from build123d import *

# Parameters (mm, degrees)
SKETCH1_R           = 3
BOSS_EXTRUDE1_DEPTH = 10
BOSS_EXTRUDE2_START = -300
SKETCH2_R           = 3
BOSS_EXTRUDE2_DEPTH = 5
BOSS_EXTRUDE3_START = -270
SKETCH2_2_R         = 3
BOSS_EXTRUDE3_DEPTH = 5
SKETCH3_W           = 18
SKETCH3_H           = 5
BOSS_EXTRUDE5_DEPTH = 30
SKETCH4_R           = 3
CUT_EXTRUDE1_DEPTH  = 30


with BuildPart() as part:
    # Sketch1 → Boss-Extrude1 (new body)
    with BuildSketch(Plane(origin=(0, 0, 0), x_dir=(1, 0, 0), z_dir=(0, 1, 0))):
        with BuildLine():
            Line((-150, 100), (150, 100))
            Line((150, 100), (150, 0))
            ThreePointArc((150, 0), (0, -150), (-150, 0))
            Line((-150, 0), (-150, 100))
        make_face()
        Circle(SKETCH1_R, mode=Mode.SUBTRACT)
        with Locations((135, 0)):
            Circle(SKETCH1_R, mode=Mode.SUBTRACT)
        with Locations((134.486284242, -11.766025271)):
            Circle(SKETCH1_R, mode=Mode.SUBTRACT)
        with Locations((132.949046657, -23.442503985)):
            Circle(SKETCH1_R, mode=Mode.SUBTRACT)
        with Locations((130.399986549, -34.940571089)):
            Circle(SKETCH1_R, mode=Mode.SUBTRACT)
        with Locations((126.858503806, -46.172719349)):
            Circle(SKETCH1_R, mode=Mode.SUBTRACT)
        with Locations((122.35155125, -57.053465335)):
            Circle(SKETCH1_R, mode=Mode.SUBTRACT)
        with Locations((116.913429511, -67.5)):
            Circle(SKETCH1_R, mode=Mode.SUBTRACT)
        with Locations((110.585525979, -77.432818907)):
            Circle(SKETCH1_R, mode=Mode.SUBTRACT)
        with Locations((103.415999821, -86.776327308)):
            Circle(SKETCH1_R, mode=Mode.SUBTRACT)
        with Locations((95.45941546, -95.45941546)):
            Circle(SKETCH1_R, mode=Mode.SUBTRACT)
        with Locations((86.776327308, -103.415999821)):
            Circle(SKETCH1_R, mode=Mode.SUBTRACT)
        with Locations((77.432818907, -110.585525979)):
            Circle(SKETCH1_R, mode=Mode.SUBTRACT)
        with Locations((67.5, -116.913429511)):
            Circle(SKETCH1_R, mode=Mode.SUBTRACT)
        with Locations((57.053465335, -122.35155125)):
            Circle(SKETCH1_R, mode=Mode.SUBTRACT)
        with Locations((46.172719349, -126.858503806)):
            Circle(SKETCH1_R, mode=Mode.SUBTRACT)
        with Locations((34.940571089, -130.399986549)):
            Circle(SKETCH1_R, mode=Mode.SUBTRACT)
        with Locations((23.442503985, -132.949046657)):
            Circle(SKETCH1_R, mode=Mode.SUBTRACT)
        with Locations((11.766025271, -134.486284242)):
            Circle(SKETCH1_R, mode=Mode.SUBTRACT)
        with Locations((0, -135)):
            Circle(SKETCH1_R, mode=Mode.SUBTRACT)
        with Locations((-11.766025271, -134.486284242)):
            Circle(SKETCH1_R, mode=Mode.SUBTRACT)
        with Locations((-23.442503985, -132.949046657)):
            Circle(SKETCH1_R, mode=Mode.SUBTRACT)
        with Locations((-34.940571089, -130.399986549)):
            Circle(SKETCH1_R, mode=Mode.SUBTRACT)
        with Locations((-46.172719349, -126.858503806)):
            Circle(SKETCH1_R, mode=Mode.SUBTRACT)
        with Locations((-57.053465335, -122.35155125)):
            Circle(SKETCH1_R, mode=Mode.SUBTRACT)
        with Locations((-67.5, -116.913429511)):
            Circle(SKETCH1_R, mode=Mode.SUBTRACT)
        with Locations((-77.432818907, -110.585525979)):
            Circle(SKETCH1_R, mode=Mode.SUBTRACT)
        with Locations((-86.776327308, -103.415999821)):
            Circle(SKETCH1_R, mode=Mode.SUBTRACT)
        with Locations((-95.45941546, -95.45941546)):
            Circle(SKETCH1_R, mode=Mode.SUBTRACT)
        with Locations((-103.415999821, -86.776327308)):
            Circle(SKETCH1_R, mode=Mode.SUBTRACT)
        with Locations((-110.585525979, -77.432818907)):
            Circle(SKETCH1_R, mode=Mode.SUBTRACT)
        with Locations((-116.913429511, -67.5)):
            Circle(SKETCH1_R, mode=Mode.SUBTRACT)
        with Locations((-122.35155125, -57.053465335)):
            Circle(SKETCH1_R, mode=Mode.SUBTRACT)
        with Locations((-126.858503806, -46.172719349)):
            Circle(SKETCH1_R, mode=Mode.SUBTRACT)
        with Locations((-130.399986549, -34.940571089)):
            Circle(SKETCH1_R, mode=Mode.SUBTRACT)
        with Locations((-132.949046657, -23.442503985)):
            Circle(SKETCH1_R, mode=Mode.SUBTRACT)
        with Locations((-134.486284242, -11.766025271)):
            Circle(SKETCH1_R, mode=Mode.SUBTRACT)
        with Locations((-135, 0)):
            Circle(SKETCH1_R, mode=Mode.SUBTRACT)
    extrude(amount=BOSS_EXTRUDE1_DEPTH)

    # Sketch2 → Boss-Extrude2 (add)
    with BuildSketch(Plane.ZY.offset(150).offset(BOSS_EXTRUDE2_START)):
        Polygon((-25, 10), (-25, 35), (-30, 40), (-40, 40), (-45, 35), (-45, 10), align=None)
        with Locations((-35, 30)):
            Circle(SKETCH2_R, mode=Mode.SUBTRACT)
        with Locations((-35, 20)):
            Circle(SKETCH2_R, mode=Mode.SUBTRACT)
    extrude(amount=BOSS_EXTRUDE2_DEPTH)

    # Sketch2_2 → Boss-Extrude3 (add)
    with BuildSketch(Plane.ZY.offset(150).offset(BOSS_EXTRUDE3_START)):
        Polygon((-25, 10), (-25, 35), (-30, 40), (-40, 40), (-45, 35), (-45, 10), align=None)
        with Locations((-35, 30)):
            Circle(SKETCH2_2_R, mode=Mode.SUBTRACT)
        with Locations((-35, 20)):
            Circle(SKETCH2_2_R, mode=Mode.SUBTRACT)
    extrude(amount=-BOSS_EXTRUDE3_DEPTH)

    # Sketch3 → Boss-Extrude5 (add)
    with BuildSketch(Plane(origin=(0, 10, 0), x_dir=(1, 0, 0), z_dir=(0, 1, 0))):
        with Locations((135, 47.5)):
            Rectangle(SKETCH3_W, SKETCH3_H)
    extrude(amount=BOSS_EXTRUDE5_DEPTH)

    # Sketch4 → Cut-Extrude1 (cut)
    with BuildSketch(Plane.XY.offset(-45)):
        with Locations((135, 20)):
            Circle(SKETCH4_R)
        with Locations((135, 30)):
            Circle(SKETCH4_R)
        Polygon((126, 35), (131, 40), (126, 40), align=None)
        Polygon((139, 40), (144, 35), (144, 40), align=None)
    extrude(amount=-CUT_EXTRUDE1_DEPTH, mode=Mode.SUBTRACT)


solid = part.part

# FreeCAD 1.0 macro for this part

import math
import FreeCAD as App
import Part
import Sketcher
from FreeCAD import Vector
Q = App.Units.Quantity

doc = App.newDocument("Part")
body = doc.addObject("PartDesign::Body", "Body")

# Sketch on XZ plane
sketch1 = body.newObject("Sketcher::SketchObject", "Sketch")
sketch1.AttachmentSupport = (doc.getObject("XZ_Plane"), [""])
sketch1.MapMode = "FlatFace"
sketch1.addGeometry(Part.LineSegment(Vector(150, -100, 0), Vector(-150, -100, 0)), False)
sketch1.addGeometry(Part.LineSegment(Vector(-150, -100, 0), Vector(-150, 0, 0)), False)
sketch1.addGeometry(Part.ArcOfCircle(Part.Circle(Vector(0, 0, 0), Vector(0, 0, 1), 150), math.radians(0), math.radians(180)), False)
sketch1.addGeometry(Part.LineSegment(Vector(150, 0, 0), Vector(150, -100, 0)), False)
sketch1.addGeometry(Part.Circle(Vector(86.776327, 103.416, 0), Vector(0, 0, 1), 3), False)
sketch1.addGeometry(Part.Circle(Vector(77.432819, 110.585526, 0), Vector(0, 0, 1), 3), False)
sketch1.addGeometry(Part.Circle(Vector(34.940571, 130.399987, 0), Vector(0, 0, 1), 3), False)
sketch1.addGeometry(Part.Circle(Vector(57.053465, 122.351551, 0), Vector(0, 0, 1), 3), False)
sketch1.addGeometry(Part.Circle(Vector(46.172719, 126.858504, 0), Vector(0, 0, 1), 3), False)
sketch1.addGeometry(Part.Circle(Vector(23.442504, 132.949047, 0), Vector(0, 0, 1), 3), False)
sketch1.addGeometry(Part.Circle(Vector(11.766025, 134.486284, 0), Vector(0, 0, 1), 3), False)
sketch1.addGeometry(Part.Circle(Vector(67.5, 116.91343, 0), Vector(0, 0, 1), 3), False)
sketch1.addGeometry(Part.Circle(Vector(95.459415, 95.459415, 0), Vector(0, 0, 1), 3), False)
sketch1.addGeometry(Part.Circle(Vector(103.416, 86.776327, 0), Vector(0, 0, 1), 3), False)
sketch1.addGeometry(Part.Circle(Vector(110.585526, 77.432819, 0), Vector(0, 0, 1), 3), False)
sketch1.addGeometry(Part.Circle(Vector(0, 135, 0), Vector(0, 0, 1), 3), False)
sketch1.addGeometry(Part.Circle(Vector(-11.766025, 134.486284, 0), Vector(0, 0, 1), 3), False)
sketch1.addGeometry(Part.Circle(Vector(-23.442504, 132.949047, 0), Vector(0, 0, 1), 3), False)
sketch1.addGeometry(Part.Circle(Vector(-34.940571, 130.399987, 0), Vector(0, 0, 1), 3), False)
sketch1.addGeometry(Part.Circle(Vector(-46.172719, 126.858504, 0), Vector(0, 0, 1), 3), False)
sketch1.addGeometry(Part.Circle(Vector(-57.053465, 122.351551, 0), Vector(0, 0, 1), 3), False)
sketch1.addGeometry(Part.Circle(Vector(-67.5, 116.91343, 0), Vector(0, 0, 1), 3), False)
sketch1.addGeometry(Part.Circle(Vector(-77.432819, 110.585526, 0), Vector(0, 0, 1), 3), False)
sketch1.addGeometry(Part.Circle(Vector(-86.776327, 103.416, 0), Vector(0, 0, 1), 3), False)
sketch1.addGeometry(Part.Circle(Vector(-95.459415, 95.459415, 0), Vector(0, 0, 1), 3), False)
sketch1.addGeometry(Part.Circle(Vector(-103.416, 86.776327, 0), Vector(0, 0, 1), 3), False)
sketch1.addGeometry(Part.Circle(Vector(-110.585526, 77.432819, 0), Vector(0, 0, 1), 3), False)
sketch1.addGeometry(Part.Circle(Vector(116.91343, 67.5, 0), Vector(0, 0, 1), 3), False)
sketch1.addGeometry(Part.Circle(Vector(122.351551, 57.053465, 0), Vector(0, 0, 1), 3), False)
sketch1.addGeometry(Part.Circle(Vector(126.858504, 46.172719, 0), Vector(0, 0, 1), 3), False)
sketch1.addGeometry(Part.Circle(Vector(130.399987, 34.940571, 0), Vector(0, 0, 1), 3), False)
sketch1.addGeometry(Part.Circle(Vector(132.949047, 23.442504, 0), Vector(0, 0, 1), 3), False)
sketch1.addGeometry(Part.Circle(Vector(134.486284, 11.766025, 0), Vector(0, 0, 1), 3), False)
sketch1.addGeometry(Part.Circle(Vector(135, 0, 0), Vector(0, 0, 1), 3), False)
sketch1.addGeometry(Part.Circle(Vector(-116.91343, 67.5, 0), Vector(0, 0, 1), 3), False)
sketch1.addGeometry(Part.Circle(Vector(-122.351551, 57.053465, 0), Vector(0, 0, 1), 3), False)
sketch1.addGeometry(Part.Circle(Vector(-126.858504, 46.172719, 0), Vector(0, 0, 1), 3), False)
sketch1.addGeometry(Part.Circle(Vector(-130.399987, 34.940571, 0), Vector(0, 0, 1), 3), False)
sketch1.addGeometry(Part.Circle(Vector(0, 0, 0), Vector(0, 0, 1), 3), False)
sketch1.addGeometry(Part.Circle(Vector(-132.949047, 23.442504, 0), Vector(0, 0, 1), 3), False)
sketch1.addGeometry(Part.Circle(Vector(-134.486284, 11.766025, 0), Vector(0, 0, 1), 3), False)
sketch1.addGeometry(Part.Circle(Vector(-135, 0, 0), Vector(0, 0, 1), 3), False)
sketch1.addConstraint(Sketcher.Constraint("Coincident", 0, 2, 1, 1))
sketch1.addConstraint(Sketcher.Constraint("Tangent", 1, 2, 2, 2))
sketch1.addConstraint(Sketcher.Constraint("Tangent", 2, 1, 3, 1))
sketch1.addConstraint(Sketcher.Constraint("Coincident", 3, 2, 0, 1))
sketch1.addConstraint(Sketcher.Constraint("Horizontal", 0))
sketch1.addConstraint(Sketcher.Constraint("Vertical", 1))
sketch1.addConstraint(Sketcher.Constraint("Vertical", 3))
sketch1.addConstraint(Sketcher.Constraint("Coincident", 2, 3, -1, 1))
sketch1.addConstraint(Sketcher.Constraint("Coincident", 38, 3, -1, 1))
sketch1.addConstraint(Sketcher.Constraint("Equal", 4, 5))
sketch1.addConstraint(Sketcher.Constraint("Equal", 5, 6))
sketch1.addConstraint(Sketcher.Constraint("Equal", 6, 7))
sketch1.addConstraint(Sketcher.Constraint("Equal", 7, 8))
sketch1.addConstraint(Sketcher.Constraint("Equal", 8, 9))
sketch1.addConstraint(Sketcher.Constraint("Equal", 9, 10))
sketch1.addConstraint(Sketcher.Constraint("Equal", 10, 11))
sketch1.addConstraint(Sketcher.Constraint("Equal", 11, 12))
sketch1.addConstraint(Sketcher.Constraint("Equal", 12, 13))
sketch1.addConstraint(Sketcher.Constraint("Equal", 13, 14))
sketch1.addConstraint(Sketcher.Constraint("Equal", 14, 15))
sketch1.addConstraint(Sketcher.Constraint("Equal", 15, 16))
sketch1.addConstraint(Sketcher.Constraint("Equal", 16, 17))
sketch1.addConstraint(Sketcher.Constraint("Equal", 17, 18))
sketch1.addConstraint(Sketcher.Constraint("Equal", 18, 19))
sketch1.addConstraint(Sketcher.Constraint("Equal", 19, 20))
sketch1.addConstraint(Sketcher.Constraint("Equal", 20, 21))
sketch1.addConstraint(Sketcher.Constraint("Equal", 21, 22))
sketch1.addConstraint(Sketcher.Constraint("Equal", 22, 23))
sketch1.addConstraint(Sketcher.Constraint("Equal", 23, 24))
sketch1.addConstraint(Sketcher.Constraint("Equal", 24, 25))
sketch1.addConstraint(Sketcher.Constraint("Equal", 25, 26))
sketch1.addConstraint(Sketcher.Constraint("Equal", 26, 27))
sketch1.addConstraint(Sketcher.Constraint("Equal", 27, 28))
sketch1.addConstraint(Sketcher.Constraint("Equal", 28, 29))
sketch1.addConstraint(Sketcher.Constraint("Equal", 29, 30))
sketch1.addConstraint(Sketcher.Constraint("Equal", 30, 31))
sketch1.addConstraint(Sketcher.Constraint("Equal", 31, 32))
sketch1.addConstraint(Sketcher.Constraint("Equal", 32, 33))
sketch1.addConstraint(Sketcher.Constraint("Equal", 33, 34))
sketch1.addConstraint(Sketcher.Constraint("Equal", 34, 35))
sketch1.addConstraint(Sketcher.Constraint("Equal", 35, 36))
sketch1.addConstraint(Sketcher.Constraint("Equal", 36, 37))
sketch1.addConstraint(Sketcher.Constraint("Equal", 37, 38))
sketch1.addConstraint(Sketcher.Constraint("Equal", 38, 39))
sketch1.addConstraint(Sketcher.Constraint("Equal", 39, 40))
sketch1.addConstraint(Sketcher.Constraint("Equal", 40, 41))
sketch1.addConstraint(Sketcher.Constraint("Symmetric", 33, 3, 41, 3, -1, 1))
sketch1.addConstraint(Sketcher.Constraint("Symmetric", 10, 3, 16, 3, -2))
sketch1.addConstraint(Sketcher.Constraint("Symmetric", 9, 3, 17, 3, -2))
sketch1.addConstraint(Sketcher.Constraint("Symmetric", 6, 3, 18, 3, -2))
sketch1.addConstraint(Sketcher.Constraint("Symmetric", 8, 3, 19, 3, -2))
sketch1.addConstraint(Sketcher.Constraint("Symmetric", 7, 3, 20, 3, -2))
sketch1.addConstraint(Sketcher.Constraint("Symmetric", 11, 3, 21, 3, -2))
sketch1.addConstraint(Sketcher.Constraint("Symmetric", 5, 3, 22, 3, -2))
sketch1.addConstraint(Sketcher.Constraint("Symmetric", 4, 3, 23, 3, -2))
sketch1.addConstraint(Sketcher.Constraint("Symmetric", 12, 3, 24, 3, -2))
sketch1.addConstraint(Sketcher.Constraint("Symmetric", 13, 3, 25, 3, -2))
sketch1.addConstraint(Sketcher.Constraint("Symmetric", 14, 3, 26, 3, -2))
sketch1.addConstraint(Sketcher.Constraint("Symmetric", 27, 3, 34, 3, -2))
sketch1.addConstraint(Sketcher.Constraint("Symmetric", 28, 3, 35, 3, -2))
sketch1.addConstraint(Sketcher.Constraint("Symmetric", 29, 3, 36, 3, -2))
sketch1.addConstraint(Sketcher.Constraint("Symmetric", 30, 3, 37, 3, -2))
sketch1.addConstraint(Sketcher.Constraint("Symmetric", 31, 3, 39, 3, -2))
sketch1.addConstraint(Sketcher.Constraint("Symmetric", 32, 3, 40, 3, -2))
sketch1.addConstraint(Sketcher.Constraint("PointOnObject", 15, 3, -2))
sketch1.addConstraint(Sketcher.Constraint("PointOnObject", 33, 3, -1))
sketch1.addConstraint(Sketcher.Constraint("Diameter", 4, Q("6 mm")))
sketch1.addConstraint(Sketcher.Constraint("Radius", 2, Q("150 mm")))
sketch1.addConstraint(Sketcher.Constraint("DistanceY", 1, 1, 1, 2, Q("100 mm")))
sketch1.addConstraint(Sketcher.Constraint("DistanceY", -1, 1, 15, 3, Q("135 mm")))
sketch1.addConstraint(Sketcher.Constraint("DistanceX", -1, 1, 33, 3, Q("135 mm")))
sketch1.addConstraint(Sketcher.Constraint("DistanceX", -1, 1, 11, 3, Q("67.5 mm")))
sketch1.addConstraint(Sketcher.Constraint("DistanceY", -1, 1, 27, 3, Q("67.5 mm")))
sketch1.addConstraint(Sketcher.Constraint("DistanceY", -1, 1, 4, 3, Q("103.416 mm")))
sketch1.addConstraint(Sketcher.Constraint("DistanceX", -1, 1, 13, 3, Q("103.416 mm")))
sketch1.addConstraint(Sketcher.Constraint("DistanceX", 8, 3, 5, 3, Q("31.2601 mm")))
sketch1.addConstraint(Sketcher.Constraint("DistanceY", 13, 3, 5, 3, Q("23.809199 mm")))
sketch1.addConstraint(Sketcher.Constraint("DistanceX", 4, 3, 14, 3, Q("23.809199 mm")))
sketch1.addConstraint(Sketcher.Constraint("DistanceY", 29, 3, 14, 3, Q("31.2601 mm")))
sketch1.addConstraint(Sketcher.Constraint("DistanceX", -1, 1, 5, 3, Q("77.432819 mm")))
sketch1.addConstraint(Sketcher.Constraint("DistanceX", -1, 1, 6, 3, Q("34.940571 mm")))
sketch1.addConstraint(Sketcher.Constraint("DistanceY", -1, 1, 7, 3, Q("122.351551 mm")))
sketch1.addConstraint(Sketcher.Constraint("DistanceY", -1, 1, 11, 3, Q("116.91343 mm")))
sketch1.addConstraint(Sketcher.Constraint("DistanceY", -1, 1, 14, 3, Q("77.432819 mm")))
sketch1.addConstraint(Sketcher.Constraint("DistanceX", -1, 1, 27, 3, Q("116.91343 mm")))
sketch1.addConstraint(Sketcher.Constraint("DistanceX", -1, 1, 28, 3, Q("122.351551 mm")))
sketch1.addConstraint(Sketcher.Constraint("DistanceY", -1, 1, 30, 3, Q("34.940571 mm")))
sketch1.addConstraint(Sketcher.Constraint("DistanceX", 5, 3, 4, 3, Q("9.343508 mm")))
sketch1.addConstraint(Sketcher.Constraint("DistanceY", 5, 3, 6, 3, Q("19.814461 mm")))
sketch1.addConstraint(Sketcher.Constraint("DistanceX", 7, 3, 4, 3, Q("29.722862 mm")))
sketch1.addConstraint(Sketcher.Constraint("DistanceY", 6, 3, 9, 3, Q("2.54906 mm")))
sketch1.addConstraint(Sketcher.Constraint("DistanceX", 9, 3, 7, 3, Q("33.610961 mm")))
sketch1.addConstraint(Sketcher.Constraint("DistanceX", 10, 3, 9, 3, Q("11.676479 mm")))
sketch1.addConstraint(Sketcher.Constraint("DistanceY", 8, 3, 10, 3, Q("7.62778 mm")))
sketch1.addConstraint(Sketcher.Constraint("DistanceY", 5, 3, 10, 3, Q("23.900758 mm")))
sketch1.addConstraint(Sketcher.Constraint("DistanceX", 4, 3, 12, 3, Q("8.683088 mm")))
sketch1.addConstraint(Sketcher.Constraint("DistanceY", 12, 3, 5, 3, Q("15.126111 mm")))
sketch1.addConstraint(Sketcher.Constraint("DistanceY", 14, 3, 13, 3, Q("9.343508 mm")))
sketch1.addConstraint(Sketcher.Constraint("DistanceY", 28, 3, 13, 3, Q("29.722862 mm")))
sketch1.addConstraint(Sketcher.Constraint("DistanceX", 12, 3, 29, 3, Q("31.399088 mm")))
sketch1.addConstraint(Sketcher.Constraint("DistanceX", 14, 3, 30, 3, Q("19.814461 mm")))
sketch1.addConstraint(Sketcher.Constraint("DistanceX", 30, 3, 31, 3, Q("2.54906 mm")))
sketch1.addConstraint(Sketcher.Constraint("DistanceY", 31, 3, 28, 3, Q("33.610961 mm")))
sketch1.addConstraint(Sketcher.Constraint("DistanceY", 32, 3, 31, 3, Q("11.676479 mm")))
sketch1.addConstraint(Sketcher.Constraint("DistanceX", 29, 3, 32, 3, Q("7.62778 mm")))
pad1 = body.newObject("PartDesign::Pad", "Pad")
pad1.Profile = sketch1
pad1.Length = 10
pad1.Reversed = True

# Sketch on YZ plane
sketch2 = body.newObject("Sketcher::SketchObject", "Sketch001")
sketch2.AttachmentSupport = (doc.getObject("YZ_Plane"), [""])
sketch2.MapMode = "FlatFace"
sketch2.AttachmentOffset = App.Placement(Vector(0, 0, 150), App.Rotation())
sketch2.addGeometry(Part.LineSegment(Vector(10, -25, 0), Vector(35, -25, 0)), False)
sketch2.addGeometry(Part.LineSegment(Vector(35, -25, 0), Vector(40, -30, 0)), False)
sketch2.addGeometry(Part.LineSegment(Vector(40, -30, 0), Vector(40, -40, 0)), False)
sketch2.addGeometry(Part.LineSegment(Vector(40, -40, 0), Vector(35, -45, 0)), False)
sketch2.addGeometry(Part.LineSegment(Vector(35, -45, 0), Vector(10, -45, 0)), False)
sketch2.addGeometry(Part.LineSegment(Vector(10, -45, 0), Vector(10, -25, 0)), False)
sketch2.addGeometry(Part.Circle(Vector(20, -35, 0), Vector(0, 0, 1), 3), False)
sketch2.addGeometry(Part.Circle(Vector(30, -35, 0), Vector(0, 0, 1), 3), False)
sketch2.addConstraint(Sketcher.Constraint("Coincident", 0, 2, 1, 1))
sketch2.addConstraint(Sketcher.Constraint("Coincident", 1, 2, 2, 1))
sketch2.addConstraint(Sketcher.Constraint("Coincident", 2, 2, 3, 1))
sketch2.addConstraint(Sketcher.Constraint("Coincident", 3, 2, 4, 1))
sketch2.addConstraint(Sketcher.Constraint("Coincident", 4, 2, 5, 1))
sketch2.addConstraint(Sketcher.Constraint("Coincident", 5, 2, 0, 1))
sketch2.addConstraint(Sketcher.Constraint("Horizontal", 0))
sketch2.addConstraint(Sketcher.Constraint("Vertical", 2))
sketch2.addConstraint(Sketcher.Constraint("Horizontal", 4))
sketch2.addConstraint(Sketcher.Constraint("Vertical", 5))
sketch2.addConstraint(Sketcher.Constraint("Equal", 6, 7))
sketch2.addConstraint(Sketcher.Constraint("Perpendicular", 1, 3))
sketch2.addConstraint(Sketcher.Constraint("Horizontal", 6, 3, 7, 3))
sketch2.addConstraint(Sketcher.Constraint("Vertical", 0, 2, 3, 2))
sketch2.addConstraint(Sketcher.Constraint("Equal", 1, 3))
sketch2.addConstraint(Sketcher.Constraint("Diameter", 6, Q("6 mm")))
sketch2.addConstraint(Sketcher.Constraint("DistanceX", 0, 1, 0, 2, Q("25 mm")))
sketch2.addConstraint(Sketcher.Constraint("DistanceY", 2, 2, 2, 1, Q("10 mm")))
sketch2.addConstraint(Sketcher.Constraint("DistanceY", 5, 1, 5, 2, Q("20 mm")))
sketch2.addConstraint(Sketcher.Constraint("DistanceX", -1, 1, 6, 3, Q("20 mm")))
sketch2.addConstraint(Sketcher.Constraint("DistanceY", 6, 3, -1, 1, Q("35 mm")))
sketch2.addConstraint(Sketcher.Constraint("DistanceX", -1, 1, 7, 3, Q("30 mm")))
sketch2.addConstraint(Sketcher.Constraint("DistanceX", -1, 1, 0, 2, Q("35 mm")))
sketch2.addConstraint(Sketcher.Constraint("DistanceY", 0, 2, -1, 1, Q("25 mm")))
pad2 = body.newObject("PartDesign::Pad", "Pad001")
pad2.Profile = sketch2
pad2.Length = 5
pad2.Reversed = True

# Sketch on YZ plane
sketch3 = body.newObject("Sketcher::SketchObject", "Sketch002")
sketch3.AttachmentSupport = (doc.getObject("YZ_Plane"), [""])
sketch3.MapMode = "FlatFace"
sketch3.AttachmentOffset = App.Placement(Vector(0, 0, 120), App.Rotation())
sketch3.addGeometry(Part.LineSegment(Vector(10, -25, 0), Vector(35, -25, 0)), False)
sketch3.addGeometry(Part.LineSegment(Vector(35, -25, 0), Vector(40, -30, 0)), False)
sketch3.addGeometry(Part.LineSegment(Vector(40, -30, 0), Vector(40, -40, 0)), False)
sketch3.addGeometry(Part.LineSegment(Vector(40, -40, 0), Vector(35, -45, 0)), False)
sketch3.addGeometry(Part.LineSegment(Vector(35, -45, 0), Vector(10, -45, 0)), False)
sketch3.addGeometry(Part.LineSegment(Vector(10, -45, 0), Vector(10, -25, 0)), False)
sketch3.addGeometry(Part.Circle(Vector(20, -35, 0), Vector(0, 0, 1), 3), False)
sketch3.addGeometry(Part.Circle(Vector(30, -35, 0), Vector(0, 0, 1), 3), False)
sketch3.addConstraint(Sketcher.Constraint("Coincident", 0, 2, 1, 1))
sketch3.addConstraint(Sketcher.Constraint("Coincident", 1, 2, 2, 1))
sketch3.addConstraint(Sketcher.Constraint("Coincident", 2, 2, 3, 1))
sketch3.addConstraint(Sketcher.Constraint("Coincident", 3, 2, 4, 1))
sketch3.addConstraint(Sketcher.Constraint("Coincident", 4, 2, 5, 1))
sketch3.addConstraint(Sketcher.Constraint("Coincident", 5, 2, 0, 1))
sketch3.addConstraint(Sketcher.Constraint("Horizontal", 0))
sketch3.addConstraint(Sketcher.Constraint("Vertical", 2))
sketch3.addConstraint(Sketcher.Constraint("Horizontal", 4))
sketch3.addConstraint(Sketcher.Constraint("Vertical", 5))
sketch3.addConstraint(Sketcher.Constraint("Equal", 6, 7))
sketch3.addConstraint(Sketcher.Constraint("Perpendicular", 1, 3))
sketch3.addConstraint(Sketcher.Constraint("Horizontal", 6, 3, 7, 3))
sketch3.addConstraint(Sketcher.Constraint("Vertical", 0, 2, 3, 2))
sketch3.addConstraint(Sketcher.Constraint("Equal", 1, 3))
sketch3.addConstraint(Sketcher.Constraint("Diameter", 6, Q("6 mm")))
sketch3.addConstraint(Sketcher.Constraint("DistanceX", 0, 1, 0, 2, Q("25 mm")))
sketch3.addConstraint(Sketcher.Constraint("DistanceY", 2, 2, 2, 1, Q("10 mm")))
sketch3.addConstraint(Sketcher.Constraint("DistanceY", 5, 1, 5, 2, Q("20 mm")))
sketch3.addConstraint(Sketcher.Constraint("DistanceX", -1, 1, 6, 3, Q("20 mm")))
sketch3.addConstraint(Sketcher.Constraint("DistanceY", 6, 3, -1, 1, Q("35 mm")))
sketch3.addConstraint(Sketcher.Constraint("DistanceX", -1, 1, 7, 3, Q("30 mm")))
sketch3.addConstraint(Sketcher.Constraint("DistanceX", -1, 1, 0, 2, Q("35 mm")))
sketch3.addConstraint(Sketcher.Constraint("DistanceY", 0, 2, -1, 1, Q("25 mm")))
pad3 = body.newObject("PartDesign::Pad", "Pad002")
pad3.Profile = sketch3
pad3.Length = 5

# Sketch on XZ plane
sketch4 = body.newObject("Sketcher::SketchObject", "Sketch003")
sketch4.AttachmentSupport = (doc.getObject("XZ_Plane"), [""])
sketch4.MapMode = "FlatFace"
sketch4.AttachmentOffset = App.Placement(Vector(0, 0, -10), App.Rotation())
sketch4.addGeometry(Part.LineSegment(Vector(126, -50, 0), Vector(126, -45, 0)), False)
sketch4.addGeometry(Part.LineSegment(Vector(126, -45, 0), Vector(144, -45, 0)), False)
sketch4.addGeometry(Part.LineSegment(Vector(144, -45, 0), Vector(144, -50, 0)), False)
sketch4.addGeometry(Part.LineSegment(Vector(144, -50, 0), Vector(126, -50, 0)), False)
sketch4.addConstraint(Sketcher.Constraint("Coincident", 0, 2, 1, 1))
sketch4.addConstraint(Sketcher.Constraint("Coincident", 1, 2, 2, 1))
sketch4.addConstraint(Sketcher.Constraint("Coincident", 2, 2, 3, 1))
sketch4.addConstraint(Sketcher.Constraint("Coincident", 3, 2, 0, 1))
sketch4.addConstraint(Sketcher.Constraint("Vertical", 0))
sketch4.addConstraint(Sketcher.Constraint("Horizontal", 1))
sketch4.addConstraint(Sketcher.Constraint("Vertical", 2))
sketch4.addConstraint(Sketcher.Constraint("Horizontal", 3))
sketch4.addConstraint(Sketcher.Constraint("DistanceX", 1, 1, 1, 2, Q("18 mm")))
sketch4.addConstraint(Sketcher.Constraint("DistanceY", 0, 1, 0, 2, Q("5 mm")))
sketch4.addConstraint(Sketcher.Constraint("DistanceX", -1, 1, 0, 2, Q("126 mm")))
sketch4.addConstraint(Sketcher.Constraint("DistanceY", 0, 2, -1, 1, Q("45 mm")))
pad4 = body.newObject("PartDesign::Pad", "Pad003")
pad4.Profile = sketch4
pad4.Length = 30
pad4.Reversed = True

# Sketch on XY plane
sketch5 = body.newObject("Sketcher::SketchObject", "Sketch004")
sketch5.AttachmentSupport = (doc.getObject("XY_Plane"), [""])
sketch5.MapMode = "FlatFace"
sketch5.AttachmentOffset = App.Placement(Vector(0, 0, -45), App.Rotation())
sketch5.addGeometry(Part.Circle(Vector(135, 20, 0), Vector(0, 0, 1), 3), False)
sketch5.addGeometry(Part.Circle(Vector(135, 30, 0), Vector(0, 0, 1), 3), False)
sketch5.addGeometry(Part.LineSegment(Vector(126, 35, 0), Vector(131, 40, 0)), False)
sketch5.addGeometry(Part.LineSegment(Vector(131, 40, 0), Vector(126, 40, 0)), False)
sketch5.addGeometry(Part.LineSegment(Vector(126, 40, 0), Vector(126, 35, 0)), False)
sketch5.addGeometry(Part.LineSegment(Vector(139, 40, 0), Vector(144, 35, 0)), False)
sketch5.addGeometry(Part.LineSegment(Vector(144, 35, 0), Vector(144, 40, 0)), False)
sketch5.addGeometry(Part.LineSegment(Vector(144, 40, 0), Vector(139, 40, 0)), False)
sketch5.addConstraint(Sketcher.Constraint("Coincident", 2, 2, 3, 1))
sketch5.addConstraint(Sketcher.Constraint("Coincident", 3, 2, 4, 1))
sketch5.addConstraint(Sketcher.Constraint("Coincident", 4, 2, 2, 1))
sketch5.addConstraint(Sketcher.Constraint("Coincident", 5, 2, 6, 1))
sketch5.addConstraint(Sketcher.Constraint("Coincident", 6, 2, 7, 1))
sketch5.addConstraint(Sketcher.Constraint("Coincident", 7, 2, 5, 1))
sketch5.addConstraint(Sketcher.Constraint("Horizontal", 3))
sketch5.addConstraint(Sketcher.Constraint("Vertical", 4))
sketch5.addConstraint(Sketcher.Constraint("Vertical", 6))
sketch5.addConstraint(Sketcher.Constraint("Horizontal", 7))
sketch5.addConstraint(Sketcher.Constraint("Equal", 0, 1))
sketch5.addConstraint(Sketcher.Constraint("Perpendicular", 2, 5))
sketch5.addConstraint(Sketcher.Constraint("Horizontal", 4, 2, 5, 2))
sketch5.addConstraint(Sketcher.Constraint("Horizontal", 3, 2, 6, 2))
sketch5.addConstraint(Sketcher.Constraint("Vertical", 0, 3, 1, 3))
sketch5.addConstraint(Sketcher.Constraint("Equal", 3, 7))
sketch5.addConstraint(Sketcher.Constraint("Diameter", 0, Q("6 mm")))
sketch5.addConstraint(Sketcher.Constraint("DistanceX", 3, 2, 3, 1, Q("5 mm")))
sketch5.addConstraint(Sketcher.Constraint("DistanceX", -1, 1, 0, 3, Q("135 mm")))
sketch5.addConstraint(Sketcher.Constraint("DistanceY", -1, 1, 0, 3, Q("20 mm")))
sketch5.addConstraint(Sketcher.Constraint("DistanceY", -1, 1, 1, 3, Q("30 mm")))
sketch5.addConstraint(Sketcher.Constraint("DistanceX", -1, 1, 2, 2, Q("131 mm")))
sketch5.addConstraint(Sketcher.Constraint("DistanceY", -1, 1, 2, 2, Q("40 mm")))
sketch5.addConstraint(Sketcher.Constraint("DistanceX", -1, 1, 5, 2, Q("144 mm")))
pocket1 = body.newObject("PartDesign::Pocket", "Pocket")
pocket1.Profile = sketch5
pocket1.Length = 30

doc.recompute()
